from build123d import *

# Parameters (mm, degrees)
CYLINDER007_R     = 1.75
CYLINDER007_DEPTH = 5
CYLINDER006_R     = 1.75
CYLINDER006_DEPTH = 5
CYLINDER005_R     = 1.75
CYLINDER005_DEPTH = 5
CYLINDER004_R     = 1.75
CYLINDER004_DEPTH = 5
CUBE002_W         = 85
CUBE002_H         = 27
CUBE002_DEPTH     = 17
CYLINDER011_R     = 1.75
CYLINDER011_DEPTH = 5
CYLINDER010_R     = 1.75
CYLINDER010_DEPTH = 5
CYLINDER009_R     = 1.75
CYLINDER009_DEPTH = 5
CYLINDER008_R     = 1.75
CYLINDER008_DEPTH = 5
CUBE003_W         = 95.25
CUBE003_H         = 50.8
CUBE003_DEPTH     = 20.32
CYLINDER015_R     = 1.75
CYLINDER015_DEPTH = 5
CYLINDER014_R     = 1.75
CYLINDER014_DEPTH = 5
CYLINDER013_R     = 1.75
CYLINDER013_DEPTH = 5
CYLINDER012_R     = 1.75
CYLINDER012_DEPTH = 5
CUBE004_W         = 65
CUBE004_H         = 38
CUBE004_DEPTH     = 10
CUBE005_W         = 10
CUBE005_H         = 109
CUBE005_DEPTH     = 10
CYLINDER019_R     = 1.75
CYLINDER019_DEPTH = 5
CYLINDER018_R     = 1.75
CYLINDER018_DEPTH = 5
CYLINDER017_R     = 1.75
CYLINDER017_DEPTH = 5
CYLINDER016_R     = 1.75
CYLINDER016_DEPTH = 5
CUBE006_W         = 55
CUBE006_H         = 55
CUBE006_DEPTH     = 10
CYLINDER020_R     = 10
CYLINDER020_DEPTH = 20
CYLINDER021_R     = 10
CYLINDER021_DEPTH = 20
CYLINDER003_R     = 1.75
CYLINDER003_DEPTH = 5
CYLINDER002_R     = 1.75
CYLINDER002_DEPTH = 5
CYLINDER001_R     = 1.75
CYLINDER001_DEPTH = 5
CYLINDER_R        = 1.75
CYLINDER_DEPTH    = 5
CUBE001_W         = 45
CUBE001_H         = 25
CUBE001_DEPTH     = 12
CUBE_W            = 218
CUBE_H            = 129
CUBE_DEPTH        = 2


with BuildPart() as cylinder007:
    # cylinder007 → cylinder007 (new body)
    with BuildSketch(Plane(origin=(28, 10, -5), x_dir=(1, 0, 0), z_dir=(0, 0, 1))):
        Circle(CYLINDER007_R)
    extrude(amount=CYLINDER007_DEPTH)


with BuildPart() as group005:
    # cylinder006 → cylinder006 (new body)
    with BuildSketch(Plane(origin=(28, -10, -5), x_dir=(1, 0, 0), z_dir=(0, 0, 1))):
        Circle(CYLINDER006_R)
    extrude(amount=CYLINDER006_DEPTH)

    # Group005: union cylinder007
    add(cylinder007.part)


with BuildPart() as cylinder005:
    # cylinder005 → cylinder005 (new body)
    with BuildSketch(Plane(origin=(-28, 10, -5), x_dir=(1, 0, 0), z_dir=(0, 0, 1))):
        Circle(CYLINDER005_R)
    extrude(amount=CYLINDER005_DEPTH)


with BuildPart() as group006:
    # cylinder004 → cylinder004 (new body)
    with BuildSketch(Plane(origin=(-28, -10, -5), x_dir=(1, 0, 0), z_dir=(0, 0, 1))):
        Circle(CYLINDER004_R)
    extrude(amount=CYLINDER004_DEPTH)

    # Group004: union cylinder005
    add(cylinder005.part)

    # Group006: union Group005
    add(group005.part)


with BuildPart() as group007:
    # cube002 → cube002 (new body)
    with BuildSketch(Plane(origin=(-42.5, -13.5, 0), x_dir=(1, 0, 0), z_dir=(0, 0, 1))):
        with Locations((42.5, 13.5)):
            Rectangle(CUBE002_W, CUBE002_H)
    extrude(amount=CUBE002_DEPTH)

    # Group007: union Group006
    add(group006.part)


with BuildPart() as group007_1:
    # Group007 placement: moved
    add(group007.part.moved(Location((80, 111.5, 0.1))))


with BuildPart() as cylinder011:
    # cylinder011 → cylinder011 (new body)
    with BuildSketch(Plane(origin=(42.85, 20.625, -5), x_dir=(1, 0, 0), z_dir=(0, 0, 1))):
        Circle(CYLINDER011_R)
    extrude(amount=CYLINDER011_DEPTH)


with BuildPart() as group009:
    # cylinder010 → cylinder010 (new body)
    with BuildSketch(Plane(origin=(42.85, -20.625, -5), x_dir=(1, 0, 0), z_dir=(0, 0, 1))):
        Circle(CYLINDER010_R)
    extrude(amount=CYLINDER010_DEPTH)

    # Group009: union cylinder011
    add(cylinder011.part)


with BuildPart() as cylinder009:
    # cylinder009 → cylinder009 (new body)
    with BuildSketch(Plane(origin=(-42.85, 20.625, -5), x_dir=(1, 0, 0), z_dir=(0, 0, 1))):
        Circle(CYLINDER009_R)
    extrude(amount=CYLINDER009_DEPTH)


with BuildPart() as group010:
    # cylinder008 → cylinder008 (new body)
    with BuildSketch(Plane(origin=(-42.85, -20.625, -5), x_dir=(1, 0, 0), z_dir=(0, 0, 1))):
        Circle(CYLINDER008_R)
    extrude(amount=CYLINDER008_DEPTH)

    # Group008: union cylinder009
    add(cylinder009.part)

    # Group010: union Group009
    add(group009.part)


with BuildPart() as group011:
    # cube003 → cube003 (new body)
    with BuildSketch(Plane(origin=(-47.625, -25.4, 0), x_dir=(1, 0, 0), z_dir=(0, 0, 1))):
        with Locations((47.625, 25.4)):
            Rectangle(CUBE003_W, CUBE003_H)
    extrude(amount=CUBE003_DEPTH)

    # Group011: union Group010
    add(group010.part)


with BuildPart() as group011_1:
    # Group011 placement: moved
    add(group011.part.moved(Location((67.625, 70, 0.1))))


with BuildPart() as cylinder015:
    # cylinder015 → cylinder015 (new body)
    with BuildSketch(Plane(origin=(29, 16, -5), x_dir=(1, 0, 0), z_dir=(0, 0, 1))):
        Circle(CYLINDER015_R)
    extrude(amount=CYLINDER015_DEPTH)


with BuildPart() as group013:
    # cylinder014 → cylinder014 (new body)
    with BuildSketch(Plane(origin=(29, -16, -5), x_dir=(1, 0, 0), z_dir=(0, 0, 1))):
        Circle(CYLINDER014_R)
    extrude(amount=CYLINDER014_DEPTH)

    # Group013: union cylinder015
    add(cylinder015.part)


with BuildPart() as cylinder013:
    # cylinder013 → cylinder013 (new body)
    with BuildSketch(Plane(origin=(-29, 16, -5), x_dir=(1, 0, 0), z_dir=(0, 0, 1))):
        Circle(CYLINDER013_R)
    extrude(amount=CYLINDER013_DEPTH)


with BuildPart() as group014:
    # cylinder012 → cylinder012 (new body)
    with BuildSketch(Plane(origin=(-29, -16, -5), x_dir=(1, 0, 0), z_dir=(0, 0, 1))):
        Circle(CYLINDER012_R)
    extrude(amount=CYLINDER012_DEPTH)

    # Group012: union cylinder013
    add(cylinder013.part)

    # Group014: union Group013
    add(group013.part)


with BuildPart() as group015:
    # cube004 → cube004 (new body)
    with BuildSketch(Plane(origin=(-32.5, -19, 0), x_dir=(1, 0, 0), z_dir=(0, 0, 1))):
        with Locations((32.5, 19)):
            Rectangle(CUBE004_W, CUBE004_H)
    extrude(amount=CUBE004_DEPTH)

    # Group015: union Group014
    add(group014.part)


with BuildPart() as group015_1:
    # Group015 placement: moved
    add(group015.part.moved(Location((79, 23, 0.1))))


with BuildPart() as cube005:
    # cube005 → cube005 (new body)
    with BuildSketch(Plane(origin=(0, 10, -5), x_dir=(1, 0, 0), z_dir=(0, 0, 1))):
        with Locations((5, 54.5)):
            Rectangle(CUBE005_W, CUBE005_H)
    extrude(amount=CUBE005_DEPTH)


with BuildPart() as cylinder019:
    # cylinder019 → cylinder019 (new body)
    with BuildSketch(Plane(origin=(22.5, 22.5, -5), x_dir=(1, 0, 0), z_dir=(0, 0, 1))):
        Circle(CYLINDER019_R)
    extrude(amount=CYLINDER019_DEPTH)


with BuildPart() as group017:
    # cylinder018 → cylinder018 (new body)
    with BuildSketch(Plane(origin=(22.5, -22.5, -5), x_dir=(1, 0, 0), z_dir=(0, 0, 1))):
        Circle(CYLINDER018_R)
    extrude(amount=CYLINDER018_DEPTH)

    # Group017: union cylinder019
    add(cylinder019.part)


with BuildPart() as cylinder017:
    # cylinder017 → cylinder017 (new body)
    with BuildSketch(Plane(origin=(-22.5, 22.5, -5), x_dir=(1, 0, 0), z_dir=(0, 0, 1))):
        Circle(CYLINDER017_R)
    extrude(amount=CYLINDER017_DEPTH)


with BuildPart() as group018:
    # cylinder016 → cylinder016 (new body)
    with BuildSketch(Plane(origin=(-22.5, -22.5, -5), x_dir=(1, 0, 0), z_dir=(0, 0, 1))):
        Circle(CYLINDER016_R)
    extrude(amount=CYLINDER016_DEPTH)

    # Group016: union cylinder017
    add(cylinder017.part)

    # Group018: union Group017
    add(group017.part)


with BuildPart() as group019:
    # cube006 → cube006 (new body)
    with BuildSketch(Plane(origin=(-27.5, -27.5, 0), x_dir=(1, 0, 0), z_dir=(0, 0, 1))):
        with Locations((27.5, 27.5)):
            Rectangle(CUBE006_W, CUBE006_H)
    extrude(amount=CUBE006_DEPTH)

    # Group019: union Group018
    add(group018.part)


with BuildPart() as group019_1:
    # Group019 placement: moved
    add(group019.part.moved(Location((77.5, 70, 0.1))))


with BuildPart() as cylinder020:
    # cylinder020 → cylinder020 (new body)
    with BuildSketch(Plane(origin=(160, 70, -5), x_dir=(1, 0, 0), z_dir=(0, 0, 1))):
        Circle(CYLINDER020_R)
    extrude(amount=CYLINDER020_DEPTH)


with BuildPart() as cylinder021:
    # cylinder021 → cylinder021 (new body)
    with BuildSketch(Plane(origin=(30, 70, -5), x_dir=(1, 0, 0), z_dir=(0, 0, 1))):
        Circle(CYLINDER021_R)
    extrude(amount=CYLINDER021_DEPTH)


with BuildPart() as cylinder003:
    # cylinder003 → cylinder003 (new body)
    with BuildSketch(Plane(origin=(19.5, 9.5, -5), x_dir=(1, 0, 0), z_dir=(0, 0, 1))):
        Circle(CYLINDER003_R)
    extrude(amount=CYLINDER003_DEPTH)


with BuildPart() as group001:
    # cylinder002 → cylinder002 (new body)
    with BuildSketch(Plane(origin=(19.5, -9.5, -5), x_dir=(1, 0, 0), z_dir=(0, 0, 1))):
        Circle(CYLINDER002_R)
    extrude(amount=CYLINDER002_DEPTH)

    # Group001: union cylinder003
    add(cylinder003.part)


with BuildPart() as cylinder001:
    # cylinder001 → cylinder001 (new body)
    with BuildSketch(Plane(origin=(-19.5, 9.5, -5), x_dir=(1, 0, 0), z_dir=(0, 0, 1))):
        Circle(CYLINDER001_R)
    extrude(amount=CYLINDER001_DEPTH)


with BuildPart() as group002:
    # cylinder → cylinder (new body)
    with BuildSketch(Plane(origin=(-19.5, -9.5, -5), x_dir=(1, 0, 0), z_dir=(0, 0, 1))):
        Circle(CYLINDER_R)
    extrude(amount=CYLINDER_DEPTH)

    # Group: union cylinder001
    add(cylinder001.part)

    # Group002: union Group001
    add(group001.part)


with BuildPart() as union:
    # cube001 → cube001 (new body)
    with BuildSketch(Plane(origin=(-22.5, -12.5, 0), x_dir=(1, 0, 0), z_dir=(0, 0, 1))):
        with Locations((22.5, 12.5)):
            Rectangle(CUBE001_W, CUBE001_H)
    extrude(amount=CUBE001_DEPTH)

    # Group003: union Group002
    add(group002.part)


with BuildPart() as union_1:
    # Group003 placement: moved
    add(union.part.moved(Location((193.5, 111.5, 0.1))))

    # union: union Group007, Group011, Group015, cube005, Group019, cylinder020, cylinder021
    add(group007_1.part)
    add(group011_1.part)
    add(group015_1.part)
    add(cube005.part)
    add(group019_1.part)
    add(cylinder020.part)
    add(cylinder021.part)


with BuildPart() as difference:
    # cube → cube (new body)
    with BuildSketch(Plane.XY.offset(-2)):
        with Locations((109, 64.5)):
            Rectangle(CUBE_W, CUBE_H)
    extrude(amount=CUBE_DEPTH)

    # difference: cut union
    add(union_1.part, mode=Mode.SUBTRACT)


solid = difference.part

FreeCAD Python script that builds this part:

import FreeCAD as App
import Part
import Sketcher
from FreeCAD import Vector

doc = App.newDocument("Part")
params = doc.addObject("Spreadsheet::Sheet", "Params")
for row, (alias, value) in enumerate([
    ("sketch1_diameter", "3.5 mm"),
    ("pad1_length", "5 mm"),
    ("sketch2_diameter", "3.5 mm"),
    ("pad2_length", "5 mm"),
    ("sketch3_diameter", "3.5 mm"),
    ("pad3_length", "5 mm"),
    ("sketch4_diameter", "3.5 mm"),
    ("pad4_length", "5 mm"),
    ("sketch5_width", "85 mm"),
    ("sketch5_height", "27 mm"),
    ("pad5_length", "17 mm"),
    ("sketch6_diameter", "3.5 mm"),
    ("pad6_length", "5 mm"),
    ("sketch7_diameter", "3.5 mm"),
    ("pad7_length", "5 mm"),
    ("sketch8_diameter", "3.5 mm"),
    ("pad8_length", "5 mm"),
    ("sketch9_diameter", "3.5 mm"),
    ("pad9_length", "5 mm"),
    ("sketch10_height", "50.8 mm"),
    ("sketch10_width", "95.25 mm"),
    ("pad10_length", "20.32 mm"),
    ("sketch11_diameter", "3.5 mm"),
    ("pad11_length", "5 mm"),
    ("sketch12_diameter", "3.5 mm"),
    ("pad12_length", "5 mm"),
    ("sketch13_diameter", "3.5 mm"),
    ("pad13_length", "5 mm"),
    ("sketch14_diameter", "3.5 mm"),
    ("pad14_length", "5 mm"),
    ("sketch15_width", "65 mm"),
    ("sketch15_height", "38 mm"),
    ("pad15_length", "10 mm"),
    ("sketch16_width", "10 mm"),
    ("sketch16_height", "109 mm"),
    ("pad16_length", "10 mm"),
    ("sketch17_diameter", "3.5 mm"),
    ("pad17_length", "5 mm"),
    ("sketch18_diameter", "3.5 mm"),
    ("pad18_length", "5 mm"),
    ("sketch19_diameter", "3.5 mm"),
    ("pad19_length", "5 mm"),
    ("sketch20_diameter", "3.5 mm"),
    ("pad20_length", "5 mm"),
    ("sketch21_width", "55 mm"),
    ("pad21_length", "10 mm"),
    ("sketch22_diameter", "20 mm"),
    ("pad22_length", "20 mm"),
    ("sketch23_diameter", "20 mm"),
    ("pad23_length", "20 mm"),
    ("sketch24_diameter", "3.5 mm"),
    ("pad24_length", "5 mm"),
    ("sketch25_diameter", "3.5 mm"),
    ("pad25_length", "5 mm"),
    ("sketch26_diameter", "3.5 mm"),
    ("pad26_length", "5 mm"),
    ("sketch27_diameter", "3.5 mm"),
    ("pad27_length", "5 mm"),
    ("sketch28_width", "45 mm"),
    ("sketch28_height", "25 mm"),
    ("pad28_length", "12 mm"),
    ("sketch29_width", "218 mm"),
    ("sketch29_height", "129 mm"),
    ("pad29_length", "2 mm"),
], start=1):
    params.set(f"A{row}", alias)
    params.set(f"B{row}", "=" + value)
    params.setAlias(f"B{row}", alias)

body = doc.addObject("PartDesign::Body", "Body")

# Sketch on XY plane
sketch1 = body.newObject("Sketcher::SketchObject", "Sketch")
sketch1.AttachmentSupport = (doc.getObject("XY_Plane"), [""])
sketch1.MapMode = "FlatFace"
sketch1.AttachmentOffset = App.Placement(Vector(0, 0, -5), App.Rotation())
sketch1.addGeometry(Part.Circle(Vector(28, 10, 0), Vector(0, 0, 1), 1.75), False)
sketch1.addConstraint([
    Sketcher.Constraint("Diameter", 0, 3.5),
    Sketcher.Constraint("DistanceX", -1, 1, 0, 3, 28.0),
    Sketcher.Constraint("DistanceY", -1, 1, 0, 3, 10.0),
])
sketch1.setExpression("Constraints[0]", "Params.sketch1_diameter")
pad1 = body.newObject("PartDesign::Pad", "Pad")
pad1.Profile = sketch1
pad1.setExpression("Length", "Params.pad1_length")
body2 = doc.addObject("PartDesign::Body", "Body001")
body2.AllowCompound = True

# Sketch on XY plane
sketch2 = body2.newObject("Sketcher::SketchObject", "Sketch001")
sketch2.AttachmentSupport = (doc.getObject("XY_Plane001"), [""])
sketch2.MapMode = "FlatFace"
sketch2.AttachmentOffset = App.Placement(Vector(0, 0, -5), App.Rotation())
sketch2.addGeometry(Part.Circle(Vector(28, -10, 0), Vector(0, 0, 1), 1.75), False)
sketch2.addConstraint([
    Sketcher.Constraint("Diameter", 0, 3.5),
    Sketcher.Constraint("DistanceX", -1, 1, 0, 3, 28.0),
    Sketcher.Constraint("DistanceY", 0, 3, -1, 1, 10.0),
])
sketch2.setExpression("Constraints[0]", "Params.sketch2_diameter")
pad2 = body2.newObject("PartDesign::Pad", "Pad001")
pad2.Profile = sketch2
pad2.setExpression("Length", "Params.pad2_length")
doc.recompute()

boolean = body2.newObject("PartDesign::Boolean", "Boolean")
boolean.Type = "Fuse"
boolean.addObjects([body])
body3 = doc.addObject("PartDesign::Body", "Body002")

# Sketch on XY plane
sketch3 = body3.newObject("Sketcher::SketchObject", "Sketch002")
sketch3.AttachmentSupport = (doc.getObject("XY_Plane002"), [""])
sketch3.MapMode = "FlatFace"
sketch3.AttachmentOffset = App.Placement(Vector(0, 0, -5), App.Rotation())
sketch3.addGeometry(Part.Circle(Vector(-28, 10, 0), Vector(0, 0, 1), 1.75), False)
sketch3.addConstraint([
    Sketcher.Constraint("Diameter", 0, 3.5),
    Sketcher.Constraint("DistanceX", 0, 3, -1, 1, 28.0),
    Sketcher.Constraint("DistanceY", -1, 1, 0, 3, 10.0),
])
sketch3.setExpression("Constraints[0]", "Params.sketch3_diameter")
pad3 = body3.newObject("PartDesign::Pad", "Pad002")
pad3.Profile = sketch3
pad3.setExpression("Length", "Params.pad3_length")
body4 = doc.addObject("PartDesign::Body", "Body003")
body4.AllowCompound = True

# Sketch on XY plane
sketch4 = body4.newObject("Sketcher::SketchObject", "Sketch003")
sketch4.AttachmentSupport = (doc.getObject("XY_Plane003"), [""])
sketch4.MapMode = "FlatFace"
sketch4.AttachmentOffset = App.Placement(Vector(0, 0, -5), App.Rotation())
sketch4.addGeometry(Part.Circle(Vector(-28, -10, 0), Vector(0, 0, 1), 1.75), False)
sketch4.addConstraint([
    Sketcher.Constraint("Diameter", 0, 3.5),
    Sketcher.Constraint("DistanceX", 0, 3, -1, 1, 28.0),
    Sketcher.Constraint("DistanceY", 0, 3, -1, 1, 10.0),
])
sketch4.setExpression("Constraints[0]", "Params.sketch4_diameter")
pad4 = body4.newObject("PartDesign::Pad", "Pad003")
pad4.Profile = sketch4
pad4.setExpression("Length", "Params.pad4_length")
doc.recompute()

boolean2 = body4.newObject("PartDesign::Boolean", "Boolean001")
boolean2.Type = "Fuse"
boolean2.addObjects([body3])
doc.recompute()

boolean3 = body4.newObject("PartDesign::Boolean", "Boolean002")
boolean3.Type = "Fuse"
boolean3.addObjects([body2])
body5 = doc.addObject("PartDesign::Body", "Body004")

# Sketch on XY plane
sketch5 = body5.newObject("Sketcher::SketchObject", "Sketch004")
sketch5.AttachmentSupport = (doc.getObject("XY_Plane004"), [""])
sketch5.MapMode = "FlatFace"
sketch5.addGeometry([
    Part.LineSegment(Vector(-42.5, 13.5, 0), Vector(-42.5, -13.5, 0)),
    Part.LineSegment(Vector(-42.5, -13.5, 0), Vector(42.5, -13.5, 0)),
    Part.LineSegment(Vector(42.5, -13.5, 0), Vector(42.5, 13.5, 0)),
    Part.LineSegment(Vector(42.5, 13.5, 0), Vector(-42.5, 13.5, 0)),
], False)
sketch5.addConstraint([
    Sketcher.Constraint("Coincident", 0, 2, 1, 1),
    Sketcher.Constraint("Coincident", 1, 2, 2, 1),
    Sketcher.Constraint("Coincident", 2, 2, 3, 1),
    Sketcher.Constraint("Coincident", 3, 2, 0, 1),
    Sketcher.Constraint("Vertical", 0),
    Sketcher.Constraint("Horizontal", 1),
    Sketcher.Constraint("Vertical", 2),
    Sketcher.Constraint("Horizontal", 3),
    Sketcher.Constraint("Symmetric", 0, 2, 2, 2, -1, 1),
    Sketcher.Constraint("DistanceX", 1, 1, 1, 2, 85.0),
    Sketcher.Constraint("DistanceY", 0, 2, 0, 1, 27.0),
])
sketch5.setExpression("Constraints[9]", "Params.sketch5_width")
sketch5.setExpression("Constraints[10]", "Params.sketch5_height")
pad5 = body5.newObject("PartDesign::Pad", "Pad004")
pad5.Profile = sketch5
pad5.setExpression("Length", "Params.pad5_length")
doc.recompute()

boolean4 = body5.newObject("PartDesign::Boolean", "Boolean003")
boolean4.Type = "Fuse"
boolean4.addObjects([body4])
body6 = doc.addObject("PartDesign::Body", "Body005")
doc.recompute()

body5.Placement = App.Placement(Vector(80, 111.5, 0.1), App.Rotation(Vector(0, 0, 1), 0))
boolean5 = body6.newObject("PartDesign::Boolean", "Boolean004")
boolean5.Type = "Fuse"
boolean5.addObjects([body5])
body7 = doc.addObject("PartDesign::Body", "Body006")

# Sketch on XY plane
sketch6 = body7.newObject("Sketcher::SketchObject", "Sketch005")
sketch6.AttachmentSupport = (doc.getObject("XY_Plane006"), [""])
sketch6.MapMode = "FlatFace"
sketch6.AttachmentOffset = App.Placement(Vector(0, 0, -5), App.Rotation())
sketch6.addGeometry(Part.Circle(Vector(42.85, 20.625, 0), Vector(0, 0, 1), 1.75), False)
sketch6.addConstraint([
    Sketcher.Constraint("Diameter", 0, 3.5),
    Sketcher.Constraint("DistanceX", -1, 1, 0, 3, 42.85),
    Sketcher.Constraint("DistanceY", -1, 1, 0, 3, 20.625),
])
sketch6.setExpression("Constraints[0]", "Params.sketch6_diameter")
pad6 = body7.newObject("PartDesign::Pad", "Pad005")
pad6.Profile = sketch6
pad6.setExpression("Length", "Params.pad6_length")
body8 = doc.addObject("PartDesign::Body", "Body007")
body8.AllowCompound = True

# Sketch on XY plane
sketch7 = body8.newObject("Sketcher::SketchObject", "Sketch006")
sketch7.AttachmentSupport = (doc.getObject("XY_Plane007"), [""])
sketch7.MapMode = "FlatFace"
sketch7.AttachmentOffset = App.Placement(Vector(0, 0, -5), App.Rotation())
sketch7.addGeometry(Part.Circle(Vector(42.85, -20.625, 0), Vector(0, 0, 1), 1.75), False)
sketch7.addConstraint([
    Sketcher.Constraint("Diameter", 0, 3.5),
    Sketcher.Constraint("DistanceX", -1, 1, 0, 3, 42.85),
    Sketcher.Constraint("DistanceY", 0, 3, -1, 1, 20.625),
])
sketch7.setExpression("Constraints[0]", "Params.sketch7_diameter")
pad7 = body8.newObject("PartDesign::Pad", "Pad006")
pad7.Profile = sketch7
pad7.setExpression("Length", "Params.pad7_length")
doc.recompute()

boolean6 = body8.newObject("PartDesign::Boolean", "Boolean005")
boolean6.Type = "Fuse"
boolean6.addObjects([body7])
body9 = doc.addObject("PartDesign::Body", "Body008")

# Sketch on XY plane
sketch8 = body9.newObject("Sketcher::SketchObject", "Sketch007")
sketch8.AttachmentSupport = (doc.getObject("XY_Plane008"), [""])
sketch8.MapMode = "FlatFace"
sketch8.AttachmentOffset = App.Placement(Vector(0, 0, -5), App.Rotation())
sketch8.addGeometry(Part.Circle(Vector(-42.85, 20.625, 0), Vector(0, 0, 1), 1.75), False)
sketch8.addConstraint([
    Sketcher.Constraint("Diameter", 0, 3.5),
    Sketcher.Constraint("DistanceX", 0, 3, -1, 1, 42.85),
    Sketcher.Constraint("DistanceY", -1, 1, 0, 3, 20.625),
])
sketch8.setExpression("Constraints[0]", "Params.sketch8_diameter")
pad8 = body9.newObject("PartDesign::Pad", "Pad007")
pad8.Profile = sketch8
pad8.setExpression("Length", "Params.pad8_length")
body10 = doc.addObject("PartDesign::Body", "Body009")
body10.AllowCompound = True

# Sketch on XY plane
sketch9 = body10.newObject("Sketcher::SketchObject", "Sketch008")
sketch9.AttachmentSupport = (doc.getObject("XY_Plane009"), [""])
sketch9.MapMode = "FlatFace"
sketch9.AttachmentOffset = App.Placement(Vector(0, 0, -5), App.Rotation())
sketch9.addGeometry(Part.Circle(Vector(-42.85, -20.625, 0), Vector(0, 0, 1), 1.75), False)
sketch9.addConstraint([
    Sketcher.Constraint("Diameter", 0, 3.5),
    Sketcher.Constraint("DistanceX", 0, 3, -1, 1, 42.85),
    Sketcher.Constraint("DistanceY", 0, 3, -1, 1, 20.625),
])
sketch9.setExpression("Constraints[0]", "Params.sketch9_diameter")
pad9 = body10.newObject("PartDesign::Pad", "Pad008")
pad9.Profile = sketch9
pad9.setExpression("Length", "Params.pad9_length")
doc.recompute()

boolean7 = body10.newObject("PartDesign::Boolean", "Boolean006")
boolean7.Type = "Fuse"
boolean7.addObjects([body9])
doc.recompute()

boolean8 = body10.newObject("PartDesign::Boolean", "Boolean007")
boolean8.Type = "Fuse"
boolean8.addObjects([body8])
body11 = doc.addObject("PartDesign::Body", "Body010")

# Sketch on XY plane
sketch10 = body11.newObject("Sketcher::SketchObject", "Sketch009")
sketch10.AttachmentSupport = (doc.getObject("XY_Plane010"), [""])
sketch10.MapMode = "FlatFace"
sketch10.addGeometry([
    Part.LineSegment(Vector(-47.625, 25.4, 0), Vector(-47.625, -25.4, 0)),
    Part.LineSegment(Vector(-47.625, -25.4, 0), Vector(47.625, -25.4, 0)),
    Part.LineSegment(Vector(47.625, -25.4, 0), Vector(47.625, 25.4, 0)),
    Part.LineSegment(Vector(47.625, 25.4, 0), Vector(-47.625, 25.4, 0)),
], False)
sketch10.addConstraint([
    Sketcher.Constraint("Coincident", 0, 2, 1, 1),
    Sketcher.Constraint("Coincident", 1, 2, 2, 1),
    Sketcher.Constraint("Coincident", 2, 2, 3, 1),
    Sketcher.Constraint("Coincident", 3, 2, 0, 1),
    Sketcher.Constraint("Vertical", 0),
    Sketcher.Constraint("Horizontal", 1),
    Sketcher.Constraint("Vertical", 2),
    Sketcher.Constraint("Horizontal", 3),
    Sketcher.Constraint("Symmetric", 0, 2, 2, 2, -1, 1),
    Sketcher.Constraint("DistanceY", 0, 2, 0, 1, 50.8),
    Sketcher.Constraint("DistanceX", 1, 1, 1, 2, 95.25),
])
sketch10.setExpression("Constraints[9]", "Params.sketch10_height")
sketch10.setExpression("Constraints[10]", "Params.sketch10_width")
pad10 = body11.newObject("PartDesign::Pad", "Pad009")
pad10.Profile = sketch10
pad10.setExpression("Length", "Params.pad10_length")
doc.recompute()

boolean9 = body11.newObject("PartDesign::Boolean", "Boolean008")
boolean9.Type = "Fuse"
boolean9.addObjects([body10])
body12 = doc.addObject("PartDesign::Body", "Body011")
doc.recompute()

body11.Placement = App.Placement(Vector(67.625, 70, 0.1), App.Rotation(Vector(0, 0, 1), 0))
boolean10 = body12.newObject("PartDesign::Boolean", "Boolean009")
boolean10.Type = "Fuse"
boolean10.addObjects([body11])
body13 = doc.addObject("PartDesign::Body", "Body012")

# Sketch on XY plane
sketch11 = body13.newObject("Sketcher::SketchObject", "Sketch010")
sketch11.AttachmentSupport = (doc.getObject("XY_Plane012"), [""])
sketch11.MapMode = "FlatFace"
sketch11.AttachmentOffset = App.Placement(Vector(0, 0, -5), App.Rotation())
sketch11.addGeometry(Part.Circle(Vector(29, 16, 0), Vector(0, 0, 1), 1.75), False)
sketch11.addConstraint([
    Sketcher.Constraint("Diameter", 0, 3.5),
    Sketcher.Constraint("DistanceX", -1, 1, 0, 3, 29.0),
    Sketcher.Constraint("DistanceY", -1, 1, 0, 3, 16.0),
])
sketch11.setExpression("Constraints[0]", "Params.sketch11_diameter")
pad11 = body13.newObject("PartDesign::Pad", "Pad010")
pad11.Profile = sketch11
pad11.setExpression("Length", "Params.pad11_length")
body14 = doc.addObject("PartDesign::Body", "Body013")
body14.AllowCompound = True

# Sketch on XY plane
sketch12 = body14.newObject("Sketcher::SketchObject", "Sketch011")
sketch12.AttachmentSupport = (doc.getObject("XY_Plane013"), [""])
sketch12.MapMode = "FlatFace"
sketch12.AttachmentOffset = App.Placement(Vector(0, 0, -5), App.Rotation())
sketch12.addGeometry(Part.Circle(Vector(29, -16, 0), Vector(0, 0, 1), 1.75), False)
sketch12.addConstraint([
    Sketcher.Constraint("Diameter", 0, 3.5),
    Sketcher.Constraint("DistanceX", -1, 1, 0, 3, 29.0),
    Sketcher.Constraint("DistanceY", 0, 3, -1, 1, 16.0),
])
sketch12.setExpression("Constraints[0]", "Params.sketch12_diameter")
pad12 = body14.newObject("PartDesign::Pad", "Pad011")
pad12.Profile = sketch12
pad12.setExpression("Length", "Params.pad12_length")
doc.recompute()

boolean11 = body14.newObject("PartDesign::Boolean", "Boolean010")
boolean11.Type = "Fuse"
boolean11.addObjects([body13])
body15 = doc.addObject("PartDesign::Body", "Body014")

# Sketch on XY plane
sketch13 = body15.newObject("Sketcher::SketchObject", "Sketch012")
sketch13.AttachmentSupport = (doc.getObject("XY_Plane014"), [""])
sketch13.MapMode = "FlatFace"
sketch13.AttachmentOffset = App.Placement(Vector(0, 0, -5), App.Rotation())
sketch13.addGeometry(Part.Circle(Vector(-29, 16, 0), Vector(0, 0, 1), 1.75), False)
sketch13.addConstraint([
    Sketcher.Constraint("Diameter", 0, 3.5),
    Sketcher.Constraint("DistanceX", 0, 3, -1, 1, 29.0),
    Sketcher.Constraint("DistanceY", -1, 1, 0, 3, 16.0),
])
sketch13.setExpression("Constraints[0]", "Params.sketch13_diameter")
pad13 = body15.newObject("PartDesign::Pad", "Pad012")
pad13.Profile = sketch13
pad13.setExpression("Length", "Params.pad13_length")
body16 = doc.addObject("PartDesign::Body", "Body015")
body16.AllowCompound = True

# Sketch on XY plane
sketch14 = body16.newObject("Sketcher::SketchObject", "Sketch013")
sketch14.AttachmentSupport = (doc.getObject("XY_Plane015"), [""])
sketch14.MapMode = "FlatFace"
sketch14.AttachmentOffset = App.Placement(Vector(0, 0, -5), App.Rotation())
sketch14.addGeometry(Part.Circle(Vector(-29, -16, 0), Vector(0, 0, 1), 1.75), False)
sketch14.addConstraint([
    Sketcher.Constraint("Diameter", 0, 3.5),
    Sketcher.Constraint("DistanceX", 0, 3, -1, 1, 29.0),
    Sketcher.Constraint("DistanceY", 0, 3, -1, 1, 16.0),
])
sketch14.setExpression("Constraints[0]", "Params.sketch14_diameter")
pad14 = body16.newObject("PartDesign::Pad", "Pad013")
pad14.Profile = sketch14
pad14.setExpression("Length", "Params.pad14_length")
doc.recompute()

boolean12 = body16.newObject("PartDesign::Boolean", "Boolean011")
boolean12.Type = "Fuse"
boolean12.addObjects([body15])
doc.recompute()

boolean13 = body16.newObject("PartDesign::Boolean", "Boolean012")
boolean13.Type = "Fuse"
boolean13.addObjects([body14])
body17 = doc.addObject("PartDesign::Body", "Body016")

# Sketch on XY plane
sketch15 = body17.newObject("Sketcher::SketchObject", "Sketch014")
sketch15.AttachmentSupport = (doc.getObject("XY_Plane016"), [""])
sketch15.MapMode = "FlatFace"
sketch15.addGeometry([
    Part.LineSegment(Vector(-32.5, 19, 0), Vector(-32.5, -19, 0)),
    Part.LineSegment(Vector(-32.5, -19, 0), Vector(32.5, -19, 0)),
    Part.LineSegment(Vector(32.5, -19, 0), Vector(32.5, 19, 0)),
    Part.LineSegment(Vector(32.5, 19, 0), Vector(-32.5, 19, 0)),
], False)
sketch15.addConstraint([
    Sketcher.Constraint("Coincident", 0, 2, 1, 1),
    Sketcher.Constraint("Coincident", 1, 2, 2, 1),
    Sketcher.Constraint("Coincident", 2, 2, 3, 1),
    Sketcher.Constraint("Coincident", 3, 2, 0, 1),
    Sketcher.Constraint("Vertical", 0),
    Sketcher.Constraint("Horizontal", 1),
    Sketcher.Constraint("Vertical", 2),
    Sketcher.Constraint("Horizontal", 3),
    Sketcher.Constraint("Symmetric", 0, 2, 2, 2, -1, 1),
    Sketcher.Constraint("DistanceX", 1, 1, 1, 2, 65.0),
    Sketcher.Constraint("DistanceY", 0, 2, 0, 1, 38.0),
])
sketch15.setExpression("Constraints[9]", "Params.sketch15_width")
sketch15.setExpression("Constraints[10]", "Params.sketch15_height")
pad15 = body17.newObject("PartDesign::Pad", "Pad014")
pad15.Profile = sketch15
pad15.setExpression("Length", "Params.pad15_length")
doc.recompute()

boolean14 = body17.newObject("PartDesign::Boolean", "Boolean013")
boolean14.Type = "Fuse"
boolean14.addObjects([body16])
body18 = doc.addObject("PartDesign::Body", "Body017")
doc.recompute()

body17.Placement = App.Placement(Vector(79, 23, 0.1), App.Rotation(Vector(0, 0, 1), 0))
boolean15 = body18.newObject("PartDesign::Boolean", "Boolean014")
boolean15.Type = "Fuse"
boolean15.addObjects([body17])
body19 = doc.addObject("PartDesign::Body", "Body018")

# Sketch on XY plane
sketch16 = body19.newObject("Sketcher::SketchObject", "Sketch015")
sketch16.AttachmentSupport = (doc.getObject("XY_Plane018"), [""])
sketch16.MapMode = "FlatFace"
sketch16.AttachmentOffset = App.Placement(Vector(0, 0, -5), App.Rotation())
sketch16.addGeometry([
    Part.LineSegment(Vector(0, 119, 0), Vector(0, 10, 0)),
    Part.LineSegment(Vector(0, 10, 0), Vector(10, 10, 0)),
    Part.LineSegment(Vector(10, 10, 0), Vector(10, 119, 0)),
    Part.LineSegment(Vector(10, 119, 0), Vector(0, 119, 0)),
], False)
sketch16.addConstraint([
    Sketcher.Constraint("Coincident", 0, 2, 1, 1),
    Sketcher.Constraint("Coincident", 1, 2, 2, 1),
    Sketcher.Constraint("Coincident", 2, 2, 3, 1),
    Sketcher.Constraint("Coincident", 3, 2, 0, 1),
    Sketcher.Constraint("Vertical", 0),
    Sketcher.Constraint("Horizontal", 1),
    Sketcher.Constraint("Vertical", 2),
    Sketcher.Constraint("Horizontal", 3),
    Sketcher.Constraint("PointOnObject", 0, 2, -2),
    Sketcher.Constraint("DistanceX", 1, 1, 1, 2, 10.0),
    Sketcher.Constraint("DistanceY", 0, 2, 0, 1, 109.0),
    Sketcher.Constraint("DistanceY", -1, 1, 0, 2, 10.0),
])
sketch16.setExpression("Constraints[9]", "Params.sketch16_width")
sketch16.setExpression("Constraints[10]", "Params.sketch16_height")
pad16 = body19.newObject("PartDesign::Pad", "Pad015")
pad16.Profile = sketch16
pad16.setExpression("Length", "Params.pad16_length")
body20 = doc.addObject("PartDesign::Body", "Body019")

# Sketch on XY plane
sketch17 = body20.newObject("Sketcher::SketchObject", "Sketch016")
sketch17.AttachmentSupport = (doc.getObject("XY_Plane019"), [""])
sketch17.MapMode = "FlatFace"
sketch17.AttachmentOffset = App.Placement(Vector(0, 0, -5), App.Rotation())
sketch17.addGeometry(Part.Circle(Vector(22.5, 22.5, 0), Vector(0, 0, 1), 1.75), False)
sketch17.addConstraint([
    Sketcher.Constraint("Diameter", 0, 3.5),
    Sketcher.Constraint("DistanceX", -1, 1, 0, 3, 22.5),
    Sketcher.Constraint("DistanceY", -1, 1, 0, 3, 22.5),
])
sketch17.setExpression("Constraints[0]", "Params.sketch17_diameter")
pad17 = body20.newObject("PartDesign::Pad", "Pad016")
pad17.Profile = sketch17
pad17.setExpression("Length", "Params.pad17_length")
body21 = doc.addObject("PartDesign::Body", "Body020")
body21.AllowCompound = True

# Sketch on XY plane
sketch18 = body21.newObject("Sketcher::SketchObject", "Sketch017")
sketch18.AttachmentSupport = (doc.getObject("XY_Plane020"), [""])
sketch18.MapMode = "FlatFace"
sketch18.AttachmentOffset = App.Placement(Vector(0, 0, -5), App.Rotation())
sketch18.addGeometry(Part.Circle(Vector(22.5, -22.5, 0), Vector(0, 0, 1), 1.75), False)
sketch18.addConstraint([
    Sketcher.Constraint("Diameter", 0, 3.5),
    Sketcher.Constraint("DistanceX", -1, 1, 0, 3, 22.5),
    Sketcher.Constraint("DistanceY", 0, 3, -1, 1, 22.5),
])
sketch18.setExpression("Constraints[0]", "Params.sketch18_diameter")
pad18 = body21.newObject("PartDesign::Pad", "Pad017")
pad18.Profile = sketch18
pad18.setExpression("Length", "Params.pad18_length")
doc.recompute()

boolean16 = body21.newObject("PartDesign::Boolean", "Boolean015")
boolean16.Type = "Fuse"
boolean16.addObjects([body20])
body22 = doc.addObject("PartDesign::Body", "Body021")

# Sketch on XY plane
sketch19 = body22.newObject("Sketcher::SketchObject", "Sketch018")
sketch19.AttachmentSupport = (doc.getObject("XY_Plane021"), [""])
sketch19.MapMode = "FlatFace"
sketch19.AttachmentOffset = App.Placement(Vector(0, 0, -5), App.Rotation())
sketch19.addGeometry(Part.Circle(Vector(-22.5, 22.5, 0), Vector(0, 0, 1), 1.75), False)
sketch19.addConstraint([
    Sketcher.Constraint("Diameter", 0, 3.5),
    Sketcher.Constraint("DistanceX", 0, 3, -1, 1, 22.5),
    Sketcher.Constraint("DistanceY", -1, 1, 0, 3, 22.5),
])
sketch19.setExpression("Constraints[0]", "Params.sketch19_diameter")
pad19 = body22.newObject("PartDesign::Pad", "Pad018")
pad19.Profile = sketch19
pad19.setExpression("Length", "Params.pad19_length")
body23 = doc.addObject("PartDesign::Body", "Body022")
body23.AllowCompound = True

# Sketch on XY plane
sketch20 = body23.newObject("Sketcher::SketchObject", "Sketch019")
sketch20.AttachmentSupport = (doc.getObject("XY_Plane022"), [""])
sketch20.MapMode = "FlatFace"
sketch20.AttachmentOffset = App.Placement(Vector(0, 0, -5), App.Rotation())
sketch20.addGeometry(Part.Circle(Vector(-22.5, -22.5, 0), Vector(0, 0, 1), 1.75), False)
sketch20.addConstraint([
    Sketcher.Constraint("Diameter", 0, 3.5),
    Sketcher.Constraint("DistanceX", 0, 3, -1, 1, 22.5),
    Sketcher.Constraint("DistanceY", 0, 3, -1, 1, 22.5),
])
sketch20.setExpression("Constraints[0]", "Params.sketch20_diameter")
pad20 = body23.newObject("PartDesign::Pad", "Pad019")
pad20.Profile = sketch20
pad20.setExpression("Length", "Params.pad20_length")
doc.recompute()

boolean17 = body23.newObject("PartDesign::Boolean", "Boolean016")
boolean17.Type = "Fuse"
boolean17.addObjects([body22])
doc.recompute()

boolean18 = body23.newObject("PartDesign::Boolean", "Boolean017")
boolean18.Type = "Fuse"
boolean18.addObjects([body21])
body24 = doc.addObject("PartDesign::Body", "Body023")

# Sketch on XY plane
sketch21 = body24.newObject("Sketcher::SketchObject", "Sketch020")
sketch21.AttachmentSupport = (doc.getObject("XY_Plane023"), [""])
sketch21.MapMode = "FlatFace"
sketch21.addGeometry([
    Part.LineSegment(Vector(-27.5, 27.5, 0), Vector(-27.5, -27.5, 0)),
    Part.LineSegment(Vector(-27.5, -27.5, 0), Vector(27.5, -27.5, 0)),
    Part.LineSegment(Vector(27.5, -27.5, 0), Vector(27.5, 27.5, 0)),
    Part.LineSegment(Vector(27.5, 27.5, 0), Vector(-27.5, 27.5, 0)),
], False)
sketch21.addConstraint([
    Sketcher.Constraint("Coincident", 0, 2, 1, 1),
    Sketcher.Constraint("Coincident", 1, 2, 2, 1),
    Sketcher.Constraint("Coincident", 2, 2, 3, 1),
    Sketcher.Constraint("Coincident", 3, 2, 0, 1),
    Sketcher.Constraint("Vertical", 0),
    Sketcher.Constraint("Horizontal", 1),
    Sketcher.Constraint("Vertical", 2),
    Sketcher.Constraint("Horizontal", 3),
    Sketcher.Constraint("Symmetric", 0, 2, 2, 2, -1, 1),
    Sketcher.Constraint("Equal", 3, 0),
    Sketcher.Constraint("DistanceX", 1, 1, 1, 2, 55.0),
])
sketch21.setExpression("Constraints[10]", "Params.sketch21_width")
pad21 = body24.newObject("PartDesign::Pad", "Pad020")
pad21.Profile = sketch21
pad21.setExpression("Length", "Params.pad21_length")
doc.recompute()

boolean19 = body24.newObject("PartDesign::Boolean", "Boolean018")
boolean19.Type = "Fuse"
boolean19.addObjects([body23])
body25 = doc.addObject("PartDesign::Body", "Body024")
doc.recompute()

body24.Placement = App.Placement(Vector(77.5, 70, 0.1), App.Rotation(Vector(0, 0, 1), 0))
boolean20 = body25.newObject("PartDesign::Boolean", "Boolean019")
boolean20.Type = "Fuse"
boolean20.addObjects([body24])
body26 = doc.addObject("PartDesign::Body", "Body025")

# Sketch on XY plane
sketch22 = body26.newObject("Sketcher::SketchObject", "Sketch021")
sketch22.AttachmentSupport = (doc.getObject("XY_Plane025"), [""])
sketch22.MapMode = "FlatFace"
sketch22.AttachmentOffset = App.Placement(Vector(0, 0, -5), App.Rotation())
sketch22.addGeometry(Part.Circle(Vector(160, 70, 0), Vector(0, 0, 1), 10), False)
sketch22.addConstraint([
    Sketcher.Constraint("Diameter", 0, 20.0),
    Sketcher.Constraint("DistanceX", -1, 1, 0, 3, 160.0),
    Sketcher.Constraint("DistanceY", -1, 1, 0, 3, 70.0),
])
sketch22.setExpression("Constraints[0]", "Params.sketch22_diameter")
pad22 = body26.newObject("PartDesign::Pad", "Pad021")
pad22.Profile = sketch22
pad22.setExpression("Length", "Params.pad22_length")
body27 = doc.addObject("PartDesign::Body", "Body026")

# Sketch on XY plane
sketch23 = body27.newObject("Sketcher::SketchObject", "Sketch022")
sketch23.AttachmentSupport = (doc.getObject("XY_Plane026"), [""])
sketch23.MapMode = "FlatFace"
sketch23.AttachmentOffset = App.Placement(Vector(0, 0, -5), App.Rotation())
sketch23.addGeometry(Part.Circle(Vector(30, 70, 0), Vector(0, 0, 1), 10), False)
sketch23.addConstraint([
    Sketcher.Constraint("Diameter", 0, 20.0),
    Sketcher.Constraint("DistanceX", -1, 1, 0, 3, 30.0),
    Sketcher.Constraint("DistanceY", -1, 1, 0, 3, 70.0),
])
sketch23.setExpression("Constraints[0]", "Params.sketch23_diameter")
pad23 = body27.newObject("PartDesign::Pad", "Pad022")
pad23.Profile = sketch23
pad23.setExpression("Length", "Params.pad23_length")
body28 = doc.addObject("PartDesign::Body", "Body027")

# Sketch on XY plane
sketch24 = body28.newObject("Sketcher::SketchObject", "Sketch023")
sketch24.AttachmentSupport = (doc.getObject("XY_Plane027"), [""])
sketch24.MapMode = "FlatFace"
sketch24.AttachmentOffset = App.Placement(Vector(0, 0, -5), App.Rotation())
sketch24.addGeometry(Part.Circle(Vector(19.5, 9.5, 0), Vector(0, 0, 1), 1.75), False)
sketch24.addConstraint([
    Sketcher.Constraint("Diameter", 0, 3.5),
    Sketcher.Constraint("DistanceX", -1, 1, 0, 3, 19.5),
    Sketcher.Constraint("DistanceY", -1, 1, 0, 3, 9.5),
])
sketch24.setExpression("Constraints[0]", "Params.sketch24_diameter")
pad24 = body28.newObject("PartDesign::Pad", "Pad023")
pad24.Profile = sketch24
pad24.setExpression("Length", "Params.pad24_length")
body29 = doc.addObject("PartDesign::Body", "Body028")
body29.AllowCompound = True

# Sketch on XY plane
sketch25 = body29.newObject("Sketcher::SketchObject", "Sketch024")
sketch25.AttachmentSupport = (doc.getObject("XY_Plane028"), [""])
sketch25.MapMode = "FlatFace"
sketch25.AttachmentOffset = App.Placement(Vector(0, 0, -5), App.Rotation())
sketch25.addGeometry(Part.Circle(Vector(19.5, -9.5, 0), Vector(0, 0, 1), 1.75), False)
sketch25.addConstraint([
    Sketcher.Constraint("Diameter", 0, 3.5),
    Sketcher.Constraint("DistanceX", -1, 1, 0, 3, 19.5),
    Sketcher.Constraint("DistanceY", 0, 3, -1, 1, 9.5),
])
sketch25.setExpression("Constraints[0]", "Params.sketch25_diameter")
pad25 = body29.newObject("PartDesign::Pad", "Pad024")
pad25.Profile = sketch25
pad25.setExpression("Length", "Params.pad25_length")
doc.recompute()

boolean21 = body29.newObject("PartDesign::Boolean", "Boolean020")
boolean21.Type = "Fuse"
boolean21.addObjects([body28])
body30 = doc.addObject("PartDesign::Body", "Body029")

# Sketch on XY plane
sketch26 = body30.newObject("Sketcher::SketchObject", "Sketch025")
sketch26.AttachmentSupport = (doc.getObject("XY_Plane029"), [""])
sketch26.MapMode = "FlatFace"
sketch26.AttachmentOffset = App.Placement(Vector(0, 0, -5), App.Rotation())
sketch26.addGeometry(Part.Circle(Vector(-19.5, 9.5, 0), Vector(0, 0, 1), 1.75), False)
sketch26.addConstraint([
    Sketcher.Constraint("Diameter", 0, 3.5),
    Sketcher.Constraint("DistanceX", 0, 3, -1, 1, 19.5),
    Sketcher.Constraint("DistanceY", -1, 1, 0, 3, 9.5),
])
sketch26.setExpression("Constraints[0]", "Params.sketch26_diameter")
pad26 = body30.newObject("PartDesign::Pad", "Pad025")
pad26.Profile = sketch26
pad26.setExpression("Length", "Params.pad26_length")
body31 = doc.addObject("PartDesign::Body", "Body030")
body31.AllowCompound = True

# Sketch on XY plane
sketch27 = body31.newObject("Sketcher::SketchObject", "Sketch026")
sketch27.AttachmentSupport = (doc.getObject("XY_Plane030"), [""])
sketch27.MapMode = "FlatFace"
sketch27.AttachmentOffset = App.Placement(Vector(0, 0, -5), App.Rotation())
sketch27.addGeometry(Part.Circle(Vector(-19.5, -9.5, 0), Vector(0, 0, 1), 1.75), False)
sketch27.addConstraint([
    Sketcher.Constraint("Diameter", 0, 3.5),
    Sketcher.Constraint("DistanceX", 0, 3, -1, 1, 19.5),
    Sketcher.Constraint("DistanceY", 0, 3, -1, 1, 9.5),
])
sketch27.setExpression("Constraints[0]", "Params.sketch27_diameter")
pad27 = body31.newObject("PartDesign::Pad", "Pad026")
pad27.Profile = sketch27
pad27.setExpression("Length", "Params.pad27_length")
doc.recompute()

boolean22 = body31.newObject("PartDesign::Boolean", "Boolean021")
boolean22.Type = "Fuse"
boolean22.addObjects([body30])
doc.recompute()

boolean23 = body31.newObject("PartDesign::Boolean", "Boolean022")
boolean23.Type = "Fuse"
boolean23.addObjects([body29])
body32 = doc.addObject("PartDesign::Body", "Body031")

# Sketch on XY plane
sketch28 = body32.newObject("Sketcher::SketchObject", "Sketch027")
sketch28.AttachmentSupport = (doc.getObject("XY_Plane031"), [""])
sketch28.MapMode = "FlatFace"
sketch28.addGeometry([
    Part.LineSegment(Vector(-22.5, 12.5, 0), Vector(-22.5, -12.5, 0)),
    Part.LineSegment(Vector(-22.5, -12.5, 0), Vector(22.5, -12.5, 0)),
    Part.LineSegment(Vector(22.5, -12.5, 0), Vector(22.5, 12.5, 0)),
    Part.LineSegment(Vector(22.5, 12.5, 0), Vector(-22.5, 12.5, 0)),
], False)
sketch28.addConstraint([
    Sketcher.Constraint("Coincident", 0, 2, 1, 1),
    Sketcher.Constraint("Coincident", 1, 2, 2, 1),
    Sketcher.Constraint("Coincident", 2, 2, 3, 1),
    Sketcher.Constraint("Coincident", 3, 2, 0, 1),
    Sketcher.Constraint("Vertical", 0),
    Sketcher.Constraint("Horizontal", 1),
    Sketcher.Constraint("Vertical", 2),
    Sketcher.Constraint("Horizontal", 3),
    Sketcher.Constraint("Symmetric", 0, 2, 2, 2, -1, 1),
    Sketcher.Constraint("DistanceX", 1, 1, 1, 2, 45.0),
    Sketcher.Constraint("DistanceY", 0, 2, 0, 1, 25.0),
])
sketch28.setExpression("Constraints[9]", "Params.sketch28_width")
sketch28.setExpression("Constraints[10]", "Params.sketch28_height")
pad28 = body32.newObject("PartDesign::Pad", "Pad027")
pad28.Profile = sketch28
pad28.setExpression("Length", "Params.pad28_length")
doc.recompute()

boolean24 = body32.newObject("PartDesign::Boolean", "Boolean023")
boolean24.Type = "Fuse"
boolean24.addObjects([body31])
body33 = doc.addObject("PartDesign::Body", "Body032")
body33.AllowCompound = True
doc.recompute()

body32.Placement = App.Placement(Vector(193.5, 111.5, 0.1), App.Rotation(Vector(0, 0, 1), 0))
boolean25 = body33.newObject("PartDesign::Boolean", "Boolean024")
boolean25.Type = "Fuse"
boolean25.addObjects([body32])
doc.recompute()

boolean26 = body33.newObject("PartDesign::Boolean", "Boolean025")
boolean26.Type = "Fuse"
boolean26.addObjects([body6])
doc.recompute()

boolean27 = body33.newObject("PartDesign::Boolean", "Boolean026")
boolean27.Type = "Fuse"
boolean27.addObjects([body12])
doc.recompute()

boolean28 = body33.newObject("PartDesign::Boolean", "Boolean027")
boolean28.Type = "Fuse"
boolean28.addObjects([body18])
doc.recompute()

boolean29 = body33.newObject("PartDesign::Boolean", "Boolean028")
boolean29.Type = "Fuse"
boolean29.addObjects([body19])
doc.recompute()

boolean30 = body33.newObject("PartDesign::Boolean", "Boolean029")
boolean30.Type = "Fuse"
boolean30.addObjects([body25])
doc.recompute()

boolean31 = body33.newObject("PartDesign::Boolean", "Boolean030")
boolean31.Type = "Fuse"
boolean31.addObjects([body26])
doc.recompute()

boolean32 = body33.newObject("PartDesign::Boolean", "Boolean031")
boolean32.Type = "Fuse"
boolean32.addObjects([body27])
body34 = doc.addObject("PartDesign::Body", "Body033")

# Sketch on XY plane
sketch29 = body34.newObject("Sketcher::SketchObject", "Sketch028")
sketch29.AttachmentSupport = (doc.getObject("XY_Plane033"), [""])
sketch29.MapMode = "FlatFace"
sketch29.AttachmentOffset = App.Placement(Vector(0, 0, -2), App.Rotation())
sketch29.addGeometry([
    Part.LineSegment(Vector(0, 129, 0), Vector(0, 0, 0)),
    Part.LineSegment(Vector(0, 0, 0), Vector(218, 0, 0)),
    Part.LineSegment(Vector(218, 0, 0), Vector(218, 129, 0)),
    Part.LineSegment(Vector(218, 129, 0), Vector(0, 129, 0)),
], False)
sketch29.addConstraint([
    Sketcher.Constraint("Coincident", 0, 2, 1, 1),
    Sketcher.Constraint("Coincident", 1, 2, 2, 1),
    Sketcher.Constraint("Coincident", 2, 2, 3, 1),
    Sketcher.Constraint("Coincident", 3, 2, 0, 1),
    Sketcher.Constraint("Vertical", 0),
    Sketcher.Constraint("Horizontal", 1),
    Sketcher.Constraint("Vertical", 2),
    Sketcher.Constraint("Horizontal", 3),
    Sketcher.Constraint("Coincident", 0, 2, -1, 1),
    Sketcher.Constraint("DistanceX", 1, 1, 1, 2, 218.0),
    Sketcher.Constraint("DistanceY", 0, 2, 0, 1, 129.0),
])
sketch29.setExpression("Constraints[9]", "Params.sketch29_width")
sketch29.setExpression("Constraints[10]", "Params.sketch29_height")
pad29 = body34.newObject("PartDesign::Pad", "Pad028")
pad29.Profile = sketch29
pad29.setExpression("Length", "Params.pad29_length")
doc.recompute()

boolean33 = body34.newObject("PartDesign::Boolean", "Boolean032")
boolean33.Type = "Cut"
boolean33.addObjects([body33])

doc.recompute()
